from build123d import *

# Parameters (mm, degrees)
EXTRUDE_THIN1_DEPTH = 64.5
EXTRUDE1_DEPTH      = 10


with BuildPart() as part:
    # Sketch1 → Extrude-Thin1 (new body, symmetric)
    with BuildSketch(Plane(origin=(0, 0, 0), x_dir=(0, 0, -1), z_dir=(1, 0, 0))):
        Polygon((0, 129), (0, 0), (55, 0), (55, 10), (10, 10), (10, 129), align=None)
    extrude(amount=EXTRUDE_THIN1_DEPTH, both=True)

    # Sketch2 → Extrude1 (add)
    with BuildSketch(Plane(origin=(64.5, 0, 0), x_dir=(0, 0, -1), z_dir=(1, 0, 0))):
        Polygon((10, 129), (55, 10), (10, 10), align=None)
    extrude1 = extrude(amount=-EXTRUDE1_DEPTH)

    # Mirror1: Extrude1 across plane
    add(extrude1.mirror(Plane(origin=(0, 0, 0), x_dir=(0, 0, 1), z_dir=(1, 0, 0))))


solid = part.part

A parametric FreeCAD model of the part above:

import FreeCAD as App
import Part
import Sketcher

V = App.Vector

doc = App.newDocument("Part")
body = doc.addObject("PartDesign::Body", "Body")

sketch1 = body.newObject("Sketcher::SketchObject", "Sketch")
sketch1.AttachmentSupport = (doc.getObject("YZ_Plane"), [""])
sketch1.MapMode = "FlatFace"
sketch1.addGeometry([
    Part.LineSegment(V(129, 0, 0), V(0, 0, 0)),
    Part.LineSegment(V(0, 0, 0), V(0, -55, 0)),
    Part.LineSegment(V(0, -55, 0), V(10, -55, 0)),
    Part.LineSegment(V(10, -55, 0), V(10, -10, 0)),
    Part.LineSegment(V(10, -10, 0), V(129, -10, 0)),
    Part.LineSegment(V(129, -10, 0), V(129, 0, 0)),
], False)
sketch1.addConstraint([
    Sketcher.Constraint("Coincident", 0, 2, 1, 1),
    Sketcher.Constraint("Coincident", 1, 2, 2, 1),
    Sketcher.Constraint("Coincident", 2, 2, 3, 1),
    Sketcher.Constraint("Coincident", 3, 2, 4, 1),
    Sketcher.Constraint("Coincident", 4, 2, 5, 1),
    Sketcher.Constraint("Coincident", 5, 2, 0, 1),
    Sketcher.Constraint("Horizontal", 0),
    Sketcher.Constraint("Vertical", 1),
    Sketcher.Constraint("Horizontal", 2),
    Sketcher.Constraint("Vertical", 3),
    Sketcher.Constraint("Horizontal", 4),
    Sketcher.Constraint("Vertical", 5),
    Sketcher.Constraint("Coincident", 0, 2, -1, 1),
    Sketcher.Constraint("Equal", 2, 5),
    Sketcher.Constraint("DistanceX", 0, 2, 0, 1, 129.0),
    Sketcher.Constraint("DistanceX", 2, 1, 2, 2, 10.0),
    Sketcher.Constraint("DistanceY", 1, 2, 1, 1, 55.0),
])
pad1 = body.newObject("PartDesign::Pad", "Pad")
pad1.Profile = sketch1
pad1.Length = 129
pad1.Midplane = True

sketch2 = body.newObject("Sketcher::SketchObject", "Sketch001")
sketch2.AttachmentSupport = (doc.getObject("YZ_Plane"), [""])
sketch2.MapMode = "FlatFace"
sketch2.AttachmentOffset = App.Placement(V(0, 0, 64.5), App.Rotation())
sketch2.addGeometry([
    Part.LineSegment(V(10, -55, 0), V(129, -10, 0)),
    Part.LineSegment(V(129, -10, 0), V(10, -10, 0)),
    Part.LineSegment(V(10, -10, 0), V(10, -55, 0)),
], False)
sketch2.addConstraint([
    Sketcher.Constraint("Coincident", 0, 2, 1, 1),
    Sketcher.Constraint("Coincident", 1, 2, 2, 1),
    Sketcher.Constraint("Coincident", 2, 2, 0, 1),
    Sketcher.Constraint("Horizontal", 1),
    Sketcher.Constraint("Vertical", 2),
    Sketcher.Constraint("DistanceX", 1, 2, 1, 1, 119.0),
    Sketcher.Constraint("DistanceY", 2, 2, 2, 1, 45.0),
    Sketcher.Constraint("DistanceX", -1, 1, 0, 2, 129.0),
    Sketcher.Constraint("DistanceY", 0, 2, -1, 1, 10.0),
])
pad2 = body.newObject("PartDesign::Pad", "Pad001")
pad2.Profile = sketch2
pad2.Length = 10
pad2.Reversed = True
doc.recompute()

mirrored = body.newObject("PartDesign::Mirrored", "Mirrored")
mirrored.Originals = [pad2]
mirrored.MirrorPlane = (doc.getObject("YZ_Plane"), [""])
body.Tip = mirrored

doc.recompute()
